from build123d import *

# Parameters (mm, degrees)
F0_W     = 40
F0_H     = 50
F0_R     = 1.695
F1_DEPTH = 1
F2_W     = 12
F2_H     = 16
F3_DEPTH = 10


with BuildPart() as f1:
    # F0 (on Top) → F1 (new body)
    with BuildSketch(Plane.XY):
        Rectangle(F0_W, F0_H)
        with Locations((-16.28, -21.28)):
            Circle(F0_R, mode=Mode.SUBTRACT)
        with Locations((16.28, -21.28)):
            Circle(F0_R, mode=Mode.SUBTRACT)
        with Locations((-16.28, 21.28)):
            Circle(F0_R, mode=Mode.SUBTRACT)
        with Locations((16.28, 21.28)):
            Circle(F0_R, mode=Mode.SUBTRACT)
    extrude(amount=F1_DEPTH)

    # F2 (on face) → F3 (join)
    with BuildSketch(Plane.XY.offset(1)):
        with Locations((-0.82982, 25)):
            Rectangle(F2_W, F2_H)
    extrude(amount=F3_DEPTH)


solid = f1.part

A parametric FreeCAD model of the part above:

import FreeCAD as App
import Part
import Sketcher
Q = App.Units.Quantity


def add_polygon(sketch, points):
    """Adds a closed chain of lines whose ends are joined by coincident constraints."""
    first, n = sketch.GeometryCount, len(points)
    for a, b in zip(points, points[1:] + points[:1]):
        sketch.addGeometry(Part.LineSegment(App.Vector(*a, 0), App.Vector(*b, 0)), False)
    for i in range(n):
        sketch.addConstraint(Sketcher.Constraint("Coincident", first + i, 2, first + (i + 1) % n, 1))

doc = App.newDocument("Part")
params = doc.addObject("Spreadsheet::Sheet", "Params")
for row, (alias, value) in enumerate([
    ("sketch1_diameter", "3.39 mm"),
    ("sketch1_width", "40 mm"),
    ("sketch1_height", "50 mm"),
    ("pad1_length", "1 mm"),
    ("sketch2_width", "12 mm"),
    ("sketch2_height", "16 mm"),
    ("pad2_length", "10 mm"),
], start=1):
    params.set(f"A{row}", alias)
    params.set(f"B{row}", "=" + value)
    params.setAlias(f"B{row}", alias)

body = doc.addObject("PartDesign::Body", "Body")

# Sketch on XY plane
sketch1 = body.newObject("Sketcher::SketchObject", "Sketch")
sketch1.AttachmentSupport = (doc.getObject("XY_Plane"), [""])
sketch1.MapMode = "FlatFace"
add_polygon(sketch1, [(-20, 25), (-20, -25), (20, -25), (20, 25)])  # lines 0-3
sketch1.addGeometry(Part.Circle(App.Vector(-16.3, -21.3, 0), App.Vector(0, 0, 1), 1.7), False)  # 4
sketch1.addGeometry(Part.Circle(App.Vector(16.3, -21.3, 0), App.Vector(0, 0, 1), 1.7), False)  # 5
sketch1.addGeometry(Part.Circle(App.Vector(-16.3, 21.3, 0), App.Vector(0, 0, 1), 1.7), False)  # 6
sketch1.addGeometry(Part.Circle(App.Vector(16.3, 21.3, 0), App.Vector(0, 0, 1), 1.7), False)  # 7
sketch1.addConstraint(Sketcher.Constraint("Vertical", 0))
sketch1.addConstraint(Sketcher.Constraint("Horizontal", 1))
sketch1.addConstraint(Sketcher.Constraint("Vertical", 2))
sketch1.addConstraint(Sketcher.Constraint("Horizontal", 3))
sketch1.addConstraint(Sketcher.Constraint("Equal", 4, 5))
sketch1.addConstraint(Sketcher.Constraint("Equal", 5, 6))
sketch1.addConstraint(Sketcher.Constraint("Equal", 6, 7))
sketch1.addConstraint(Sketcher.Constraint("Symmetric", 5, 3, 6, 3, -1, 1))
sketch1.addConstraint(Sketcher.Constraint("Symmetric", 4, 3, 7, 3, -1, 1))
sketch1.addConstraint(Sketcher.Constraint("Symmetric", 0, 2, 2, 2, -1, 1))
sketch1.addConstraint(Sketcher.Constraint("Symmetric", 4, 3, 5, 3, -2))
sketch1.addConstraint(Sketcher.Constraint("Diameter", 4, Q("3.39 mm")))
sketch1.addConstraint(Sketcher.Constraint("DistanceX", 1, 1, 1, 2, Q("40 mm")))
sketch1.addConstraint(Sketcher.Constraint("DistanceY", 0, 2, 0, 1, Q("50 mm")))
sketch1.addConstraint(Sketcher.Constraint("DistanceX", 4, 3, -1, 1, Q("16.28 mm")))
sketch1.addConstraint(Sketcher.Constraint("DistanceY", 4, 3, -1, 1, Q("21.28 mm")))
sketch1.setExpression("Constraints[15]", "Params.sketch1_diameter")
sketch1.setExpression("Constraints[16]", "Params.sketch1_width")
sketch1.setExpression("Constraints[17]", "Params.sketch1_height")
pad1 = body.newObject("PartDesign::Pad", "Pad")
pad1.Profile = sketch1
pad1.setExpression("Length", "Params.pad1_length")

# Sketch on XY plane
sketch2 = body.newObject("Sketcher::SketchObject", "Sketch001")
sketch2.AttachmentSupport = (doc.getObject("XY_Plane"), [""])
sketch2.MapMode = "FlatFace"
sketch2.AttachmentOffset = App.Placement(App.Vector(0, 0, 1), App.Rotation())
add_polygon(sketch2, [(-7, 33), (-7, 17), (5, 17), (5, 33)])  # lines 0-3
sketch2.addConstraint(Sketcher.Constraint("Vertical", 0))
sketch2.addConstraint(Sketcher.Constraint("Horizontal", 1))
sketch2.addConstraint(Sketcher.Constraint("Vertical", 2))
sketch2.addConstraint(Sketcher.Constraint("Horizontal", 3))
sketch2.addConstraint(Sketcher.Constraint("DistanceX", 1, 1, 1, 2, Q("12 mm")))
sketch2.addConstraint(Sketcher.Constraint("DistanceY", 0, 2, 0, 1, Q("16 mm")))
sketch2.addConstraint(Sketcher.Constraint("DistanceY", -1, 1, 0, 2, Q("17 mm")))
sketch2.addConstraint(Sketcher.Constraint("DistanceX", 0, 2, -1, 1, Q("6.82982 mm")))
sketch2.setExpression("Constraints[8]", "Params.sketch2_width")
sketch2.setExpression("Constraints[9]", "Params.sketch2_height")
pad2 = body.newObject("PartDesign::Pad", "Pad001")
pad2.Profile = sketch2
pad2.setExpression("Length", "Params.pad2_length")

doc.recompute()
